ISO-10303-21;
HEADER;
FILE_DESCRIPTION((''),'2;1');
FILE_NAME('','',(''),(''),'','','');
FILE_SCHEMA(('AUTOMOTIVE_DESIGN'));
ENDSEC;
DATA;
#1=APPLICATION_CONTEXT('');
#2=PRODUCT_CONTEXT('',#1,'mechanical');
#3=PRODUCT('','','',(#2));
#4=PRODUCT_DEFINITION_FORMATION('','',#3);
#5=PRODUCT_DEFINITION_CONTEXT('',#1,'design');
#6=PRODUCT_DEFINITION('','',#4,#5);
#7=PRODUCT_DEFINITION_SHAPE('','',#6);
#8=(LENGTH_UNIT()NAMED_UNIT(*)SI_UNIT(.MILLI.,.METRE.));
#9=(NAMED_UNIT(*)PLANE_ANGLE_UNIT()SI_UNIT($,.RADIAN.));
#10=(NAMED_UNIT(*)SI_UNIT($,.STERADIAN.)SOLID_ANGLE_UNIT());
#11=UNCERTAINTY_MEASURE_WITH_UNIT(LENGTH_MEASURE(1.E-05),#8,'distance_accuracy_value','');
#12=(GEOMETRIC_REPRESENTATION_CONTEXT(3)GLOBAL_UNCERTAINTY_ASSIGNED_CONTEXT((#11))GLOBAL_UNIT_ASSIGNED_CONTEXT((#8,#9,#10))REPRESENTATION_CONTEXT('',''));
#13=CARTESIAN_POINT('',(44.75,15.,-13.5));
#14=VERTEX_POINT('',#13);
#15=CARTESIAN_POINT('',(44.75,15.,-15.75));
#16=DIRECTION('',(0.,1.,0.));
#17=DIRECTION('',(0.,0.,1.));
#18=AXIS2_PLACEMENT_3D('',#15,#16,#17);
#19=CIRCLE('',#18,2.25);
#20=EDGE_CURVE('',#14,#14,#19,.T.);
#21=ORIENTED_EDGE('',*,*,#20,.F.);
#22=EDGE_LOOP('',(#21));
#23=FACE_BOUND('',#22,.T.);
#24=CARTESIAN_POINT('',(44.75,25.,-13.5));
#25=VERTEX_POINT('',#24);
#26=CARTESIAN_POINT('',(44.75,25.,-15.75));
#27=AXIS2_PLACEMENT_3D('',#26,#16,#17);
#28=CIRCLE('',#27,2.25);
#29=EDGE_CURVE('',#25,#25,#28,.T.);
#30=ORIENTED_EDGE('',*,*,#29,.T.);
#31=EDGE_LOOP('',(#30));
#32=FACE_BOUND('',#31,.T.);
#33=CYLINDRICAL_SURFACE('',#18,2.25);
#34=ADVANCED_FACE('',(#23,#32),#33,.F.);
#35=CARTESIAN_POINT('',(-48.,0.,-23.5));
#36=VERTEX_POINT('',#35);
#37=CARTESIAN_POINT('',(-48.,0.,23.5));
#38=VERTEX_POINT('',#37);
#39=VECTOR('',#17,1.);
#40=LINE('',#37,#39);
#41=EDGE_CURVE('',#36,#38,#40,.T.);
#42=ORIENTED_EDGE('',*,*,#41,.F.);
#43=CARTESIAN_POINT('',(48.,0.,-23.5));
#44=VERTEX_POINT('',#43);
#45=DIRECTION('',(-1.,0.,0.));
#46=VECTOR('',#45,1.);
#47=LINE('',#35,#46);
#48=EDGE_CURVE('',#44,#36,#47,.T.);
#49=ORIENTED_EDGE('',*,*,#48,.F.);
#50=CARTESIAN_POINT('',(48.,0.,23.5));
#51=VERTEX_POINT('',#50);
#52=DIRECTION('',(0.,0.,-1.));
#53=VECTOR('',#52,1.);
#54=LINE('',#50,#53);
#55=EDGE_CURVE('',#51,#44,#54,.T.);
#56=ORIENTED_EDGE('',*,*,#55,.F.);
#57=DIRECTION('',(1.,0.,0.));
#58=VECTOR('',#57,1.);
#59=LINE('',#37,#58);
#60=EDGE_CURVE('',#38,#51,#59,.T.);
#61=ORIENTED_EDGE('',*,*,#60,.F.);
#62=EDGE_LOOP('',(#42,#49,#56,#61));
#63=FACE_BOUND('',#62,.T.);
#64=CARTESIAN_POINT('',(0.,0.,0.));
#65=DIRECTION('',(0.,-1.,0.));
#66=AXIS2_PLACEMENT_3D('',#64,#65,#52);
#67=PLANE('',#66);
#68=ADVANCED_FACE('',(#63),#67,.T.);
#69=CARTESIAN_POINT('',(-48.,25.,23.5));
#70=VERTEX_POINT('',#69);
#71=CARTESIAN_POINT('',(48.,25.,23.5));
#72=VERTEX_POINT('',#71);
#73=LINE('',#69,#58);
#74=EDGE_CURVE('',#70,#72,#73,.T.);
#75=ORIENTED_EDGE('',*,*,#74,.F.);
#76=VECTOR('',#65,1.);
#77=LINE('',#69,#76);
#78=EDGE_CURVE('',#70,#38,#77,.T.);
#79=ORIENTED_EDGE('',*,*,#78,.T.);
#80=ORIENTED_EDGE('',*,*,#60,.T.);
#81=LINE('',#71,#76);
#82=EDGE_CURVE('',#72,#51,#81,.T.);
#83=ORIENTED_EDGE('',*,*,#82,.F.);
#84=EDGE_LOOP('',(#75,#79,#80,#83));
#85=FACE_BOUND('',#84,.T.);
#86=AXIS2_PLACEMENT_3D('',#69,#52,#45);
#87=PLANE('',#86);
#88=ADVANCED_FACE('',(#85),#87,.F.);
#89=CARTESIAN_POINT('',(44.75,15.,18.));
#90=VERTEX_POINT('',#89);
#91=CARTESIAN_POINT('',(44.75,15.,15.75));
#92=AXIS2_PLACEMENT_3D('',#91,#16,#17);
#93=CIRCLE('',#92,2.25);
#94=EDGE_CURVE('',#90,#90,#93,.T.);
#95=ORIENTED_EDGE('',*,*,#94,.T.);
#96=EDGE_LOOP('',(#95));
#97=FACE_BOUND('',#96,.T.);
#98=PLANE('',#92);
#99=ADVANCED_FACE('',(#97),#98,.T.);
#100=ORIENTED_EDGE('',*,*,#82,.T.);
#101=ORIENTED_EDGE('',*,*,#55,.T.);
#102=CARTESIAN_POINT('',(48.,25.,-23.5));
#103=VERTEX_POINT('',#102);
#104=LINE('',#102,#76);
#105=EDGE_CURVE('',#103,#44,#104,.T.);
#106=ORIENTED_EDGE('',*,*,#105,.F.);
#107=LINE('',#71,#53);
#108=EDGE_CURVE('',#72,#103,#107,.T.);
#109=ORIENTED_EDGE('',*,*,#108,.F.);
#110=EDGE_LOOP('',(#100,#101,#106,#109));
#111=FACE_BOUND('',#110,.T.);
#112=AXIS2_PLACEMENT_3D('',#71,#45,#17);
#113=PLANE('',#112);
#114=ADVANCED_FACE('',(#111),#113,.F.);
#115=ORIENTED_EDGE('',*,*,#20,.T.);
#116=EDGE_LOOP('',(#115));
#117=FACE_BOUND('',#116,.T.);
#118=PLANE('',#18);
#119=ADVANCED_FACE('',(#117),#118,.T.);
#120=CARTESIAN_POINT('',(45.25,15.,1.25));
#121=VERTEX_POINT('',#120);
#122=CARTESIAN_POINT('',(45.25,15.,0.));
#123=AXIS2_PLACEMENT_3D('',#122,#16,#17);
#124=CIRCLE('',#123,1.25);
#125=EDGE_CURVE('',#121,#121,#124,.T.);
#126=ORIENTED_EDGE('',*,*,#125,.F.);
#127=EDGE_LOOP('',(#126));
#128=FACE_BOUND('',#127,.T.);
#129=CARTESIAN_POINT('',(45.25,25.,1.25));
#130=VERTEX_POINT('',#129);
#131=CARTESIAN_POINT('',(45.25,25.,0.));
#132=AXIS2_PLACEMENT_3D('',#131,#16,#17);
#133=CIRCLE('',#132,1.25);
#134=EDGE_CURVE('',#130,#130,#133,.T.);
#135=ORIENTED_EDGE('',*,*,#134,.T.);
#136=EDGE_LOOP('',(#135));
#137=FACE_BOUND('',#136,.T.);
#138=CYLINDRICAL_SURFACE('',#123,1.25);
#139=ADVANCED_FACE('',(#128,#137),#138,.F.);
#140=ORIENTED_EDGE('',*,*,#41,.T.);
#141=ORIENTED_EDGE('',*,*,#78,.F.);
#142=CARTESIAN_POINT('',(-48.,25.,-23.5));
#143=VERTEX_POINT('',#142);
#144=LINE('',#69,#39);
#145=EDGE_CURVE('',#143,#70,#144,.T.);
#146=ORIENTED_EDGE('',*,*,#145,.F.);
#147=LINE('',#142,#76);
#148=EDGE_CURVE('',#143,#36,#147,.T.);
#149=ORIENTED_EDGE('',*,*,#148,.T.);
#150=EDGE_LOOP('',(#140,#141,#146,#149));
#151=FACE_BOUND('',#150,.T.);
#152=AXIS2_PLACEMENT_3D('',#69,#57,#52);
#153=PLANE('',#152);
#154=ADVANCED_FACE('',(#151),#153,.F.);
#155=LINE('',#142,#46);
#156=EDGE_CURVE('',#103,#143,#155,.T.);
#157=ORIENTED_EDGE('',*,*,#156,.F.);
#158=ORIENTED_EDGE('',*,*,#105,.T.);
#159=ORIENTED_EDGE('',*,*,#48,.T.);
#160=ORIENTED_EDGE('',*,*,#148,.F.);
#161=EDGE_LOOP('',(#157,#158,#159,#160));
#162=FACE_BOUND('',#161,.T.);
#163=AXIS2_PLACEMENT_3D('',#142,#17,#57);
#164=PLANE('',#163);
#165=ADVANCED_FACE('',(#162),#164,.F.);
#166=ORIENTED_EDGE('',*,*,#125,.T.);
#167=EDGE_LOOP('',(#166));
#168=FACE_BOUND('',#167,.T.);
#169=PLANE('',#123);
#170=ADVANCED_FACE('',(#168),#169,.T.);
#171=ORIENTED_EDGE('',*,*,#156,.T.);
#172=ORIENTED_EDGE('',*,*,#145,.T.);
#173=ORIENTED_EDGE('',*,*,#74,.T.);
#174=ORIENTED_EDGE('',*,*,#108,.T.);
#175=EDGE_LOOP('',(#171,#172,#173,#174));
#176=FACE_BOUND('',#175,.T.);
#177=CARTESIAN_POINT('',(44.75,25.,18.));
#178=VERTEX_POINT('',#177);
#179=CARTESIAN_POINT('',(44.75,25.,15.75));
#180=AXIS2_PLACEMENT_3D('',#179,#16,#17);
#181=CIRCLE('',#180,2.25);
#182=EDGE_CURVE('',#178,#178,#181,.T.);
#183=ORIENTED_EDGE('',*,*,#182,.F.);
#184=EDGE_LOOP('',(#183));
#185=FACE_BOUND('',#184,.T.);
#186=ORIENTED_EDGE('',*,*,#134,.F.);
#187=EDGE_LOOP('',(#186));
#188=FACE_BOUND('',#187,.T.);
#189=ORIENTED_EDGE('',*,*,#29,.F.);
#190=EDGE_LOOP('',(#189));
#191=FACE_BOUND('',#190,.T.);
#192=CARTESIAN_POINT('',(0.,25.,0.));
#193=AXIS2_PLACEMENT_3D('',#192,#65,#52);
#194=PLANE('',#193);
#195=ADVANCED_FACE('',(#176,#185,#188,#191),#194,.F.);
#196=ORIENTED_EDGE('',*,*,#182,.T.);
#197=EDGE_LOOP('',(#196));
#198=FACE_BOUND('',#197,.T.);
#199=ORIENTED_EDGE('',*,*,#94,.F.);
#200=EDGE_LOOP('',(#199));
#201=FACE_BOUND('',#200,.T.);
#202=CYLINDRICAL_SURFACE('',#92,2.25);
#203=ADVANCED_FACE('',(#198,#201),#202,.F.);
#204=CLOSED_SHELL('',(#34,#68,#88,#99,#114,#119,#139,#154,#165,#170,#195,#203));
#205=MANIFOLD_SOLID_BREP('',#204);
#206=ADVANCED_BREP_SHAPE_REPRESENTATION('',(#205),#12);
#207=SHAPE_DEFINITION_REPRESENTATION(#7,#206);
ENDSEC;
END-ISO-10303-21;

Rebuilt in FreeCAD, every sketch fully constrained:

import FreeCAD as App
import Part
import Sketcher
from FreeCAD import Vector
Q = App.Units.Quantity


def add_polygon(sketch, points):
    """Adds a closed chain of lines whose ends are joined by coincident constraints."""
    first, n = sketch.GeometryCount, len(points)
    for a, b in zip(points, points[1:] + points[:1]):
        sketch.addGeometry(Part.LineSegment(App.Vector(*a, 0), App.Vector(*b, 0)), False)
    for i in range(n):
        sketch.addConstraint(Sketcher.Constraint("Coincident", first + i, 2, first + (i + 1) % n, 1))

doc = App.newDocument("Part")
body = doc.addObject("PartDesign::Body", "Body")

sketch1 = doc.addObject("Sketcher::SketchObject", "Sketch")
body.addObject(sketch1)
sketch1.AttachmentSupport = (doc.XZ_Plane, [""])
sketch1.MapMode = "FlatFace"
add_polygon(sketch1, [(-48, -24), (-48, 24), (48, 24), (48, -24)])
sketch1.addConstraint([
    Sketcher.Constraint("Vertical", 0),
    Sketcher.Constraint("Horizontal", 1),
    Sketcher.Constraint("Vertical", 2),
    Sketcher.Constraint("Horizontal", 3),
    Sketcher.Constraint("Symmetric", 0, 2, 2, 2, -1, 1),
    Sketcher.Constraint("DistanceX", 1, 1, 1, 2, Q("96 mm")),
    Sketcher.Constraint("DistanceY", 0, 1, 0, 2, Q("47 mm")),
])
pad1 = doc.addObject("PartDesign::Pad", "Pad")
body.addObject(pad1)
pad1.Profile = sketch1
pad1.Length = 25
pad1.Reversed = True

sketch2 = doc.addObject("Sketcher::SketchObject", "Sketch001")
body.addObject(sketch2)
sketch2.AttachmentSupport = (doc.XZ_Plane, [""])
sketch2.MapMode = "FlatFace"
sketch2.AttachmentOffset = App.Placement(Vector(0, 0, -25), App.Rotation())
sketch2.addGeometry([
    Part.Circle(Vector(44.8, -15.8, 0), Vector(0, 0, 1), 2.2),
    Part.Circle(Vector(44.8, 15.8, 0), Vector(0, 0, 1), 2.2),
    Part.Circle(Vector(45.2, 0, 0), Vector(0, 0, 1), 1.2),
], False)
sketch2.addConstraint([
    Sketcher.Constraint("Equal", 0, 1),
    Sketcher.Constraint("Symmetric", 0, 3, 1, 3, -1),
    Sketcher.Constraint("PointOnObject", 2, 3, -1),
    Sketcher.Constraint("Diameter", 0, Q("4.5 mm")),
    Sketcher.Constraint("Diameter", 2, Q("2.5 mm")),
    Sketcher.Constraint("DistanceY", 0, 3, 1, 3, Q("31.5 mm")),
    Sketcher.Constraint("DistanceX", 0, 3, 2, 3, Q("0.5 mm")),
    Sketcher.Constraint("DistanceX", -1, 1, 0, 3, Q("44.75 mm")),
])
pocket1 = doc.addObject("PartDesign::Pocket", "Pocket")
body.addObject(pocket1)
pocket1.Profile = sketch2
pocket1.Length = 10
pocket1.Reversed = True

doc.recompute()
